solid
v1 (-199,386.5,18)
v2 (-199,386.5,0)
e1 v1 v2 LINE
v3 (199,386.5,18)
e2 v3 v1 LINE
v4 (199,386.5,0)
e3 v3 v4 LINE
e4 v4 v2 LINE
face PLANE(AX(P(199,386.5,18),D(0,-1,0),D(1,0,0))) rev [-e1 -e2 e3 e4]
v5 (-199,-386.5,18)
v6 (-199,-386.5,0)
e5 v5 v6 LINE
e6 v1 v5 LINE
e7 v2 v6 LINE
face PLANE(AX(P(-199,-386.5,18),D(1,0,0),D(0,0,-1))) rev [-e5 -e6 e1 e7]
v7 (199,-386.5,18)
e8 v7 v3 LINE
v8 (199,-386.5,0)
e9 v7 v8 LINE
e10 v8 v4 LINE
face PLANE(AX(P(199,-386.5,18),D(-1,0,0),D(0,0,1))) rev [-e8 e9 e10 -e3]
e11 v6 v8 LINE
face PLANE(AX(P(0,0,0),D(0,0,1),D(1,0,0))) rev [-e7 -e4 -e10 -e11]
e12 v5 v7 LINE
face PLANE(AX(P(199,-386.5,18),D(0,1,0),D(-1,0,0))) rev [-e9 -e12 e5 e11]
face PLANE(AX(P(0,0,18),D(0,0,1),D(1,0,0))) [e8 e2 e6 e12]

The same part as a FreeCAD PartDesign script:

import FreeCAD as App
import Part
import Sketcher
from FreeCAD import Vector
Q = App.Units.Quantity

doc = App.newDocument("Part")
params = doc.addObject("Spreadsheet::Sheet", "Params")
for row, (alias, value) in enumerate([
    ("sketch1_width", "398 mm"),
    ("sketch1_height", "773 mm"),
    ("pad1_length", "18 mm"),
], start=1):
    params.set(f"A{row}", alias)
    params.set(f"B{row}", "=" + value)
    params.setAlias(f"B{row}", alias)

body = doc.addObject("PartDesign::Body", "Body")

sketch1 = body.newObject("Sketcher::SketchObject", "Sketch")
sketch1.AttachmentSupport = (doc.getObject("XY_Plane"), [""])
sketch1.MapMode = "FlatFace"
sketch1.addGeometry(Part.LineSegment(Vector(-199, 386, 0), Vector(-199, -386, 0)), False)
sketch1.addGeometry(Part.LineSegment(Vector(-199, -386, 0), Vector(199, -386, 0)), False)
sketch1.addGeometry(Part.LineSegment(Vector(199, -386, 0), Vector(199, 386, 0)), False)
sketch1.addGeometry(Part.LineSegment(Vector(199, 386, 0), Vector(-199, 386, 0)), False)
sketch1.addConstraint(Sketcher.Constraint("Coincident", 0, 2, 1, 1))
sketch1.addConstraint(Sketcher.Constraint("Coincident", 1, 2, 2, 1))
sketch1.addConstraint(Sketcher.Constraint("Coincident", 2, 2, 3, 1))
sketch1.addConstraint(Sketcher.Constraint("Coincident", 3, 2, 0, 1))
sketch1.addConstraint(Sketcher.Constraint("Vertical", 0))
sketch1.addConstraint(Sketcher.Constraint("Horizontal", 1))
sketch1.addConstraint(Sketcher.Constraint("Vertical", 2))
sketch1.addConstraint(Sketcher.Constraint("Horizontal", 3))
sketch1.addConstraint(Sketcher.Constraint("Symmetric", 0, 2, 2, 2, -1, 1))
sketch1.addConstraint(Sketcher.Constraint("DistanceX", 1, 1, 1, 2, Q("398 mm")))
sketch1.addConstraint(Sketcher.Constraint("DistanceY", 0, 2, 0, 1, Q("773 mm")))
sketch1.setExpression("Constraints[9]", "Params.sketch1_width")
sketch1.setExpression("Constraints[10]", "Params.sketch1_height")
pad1 = body.newObject("PartDesign::Pad", "Pad")
pad1.Profile = sketch1
pad1.setExpression("Length", "Params.pad1_length")

doc.recompute()
